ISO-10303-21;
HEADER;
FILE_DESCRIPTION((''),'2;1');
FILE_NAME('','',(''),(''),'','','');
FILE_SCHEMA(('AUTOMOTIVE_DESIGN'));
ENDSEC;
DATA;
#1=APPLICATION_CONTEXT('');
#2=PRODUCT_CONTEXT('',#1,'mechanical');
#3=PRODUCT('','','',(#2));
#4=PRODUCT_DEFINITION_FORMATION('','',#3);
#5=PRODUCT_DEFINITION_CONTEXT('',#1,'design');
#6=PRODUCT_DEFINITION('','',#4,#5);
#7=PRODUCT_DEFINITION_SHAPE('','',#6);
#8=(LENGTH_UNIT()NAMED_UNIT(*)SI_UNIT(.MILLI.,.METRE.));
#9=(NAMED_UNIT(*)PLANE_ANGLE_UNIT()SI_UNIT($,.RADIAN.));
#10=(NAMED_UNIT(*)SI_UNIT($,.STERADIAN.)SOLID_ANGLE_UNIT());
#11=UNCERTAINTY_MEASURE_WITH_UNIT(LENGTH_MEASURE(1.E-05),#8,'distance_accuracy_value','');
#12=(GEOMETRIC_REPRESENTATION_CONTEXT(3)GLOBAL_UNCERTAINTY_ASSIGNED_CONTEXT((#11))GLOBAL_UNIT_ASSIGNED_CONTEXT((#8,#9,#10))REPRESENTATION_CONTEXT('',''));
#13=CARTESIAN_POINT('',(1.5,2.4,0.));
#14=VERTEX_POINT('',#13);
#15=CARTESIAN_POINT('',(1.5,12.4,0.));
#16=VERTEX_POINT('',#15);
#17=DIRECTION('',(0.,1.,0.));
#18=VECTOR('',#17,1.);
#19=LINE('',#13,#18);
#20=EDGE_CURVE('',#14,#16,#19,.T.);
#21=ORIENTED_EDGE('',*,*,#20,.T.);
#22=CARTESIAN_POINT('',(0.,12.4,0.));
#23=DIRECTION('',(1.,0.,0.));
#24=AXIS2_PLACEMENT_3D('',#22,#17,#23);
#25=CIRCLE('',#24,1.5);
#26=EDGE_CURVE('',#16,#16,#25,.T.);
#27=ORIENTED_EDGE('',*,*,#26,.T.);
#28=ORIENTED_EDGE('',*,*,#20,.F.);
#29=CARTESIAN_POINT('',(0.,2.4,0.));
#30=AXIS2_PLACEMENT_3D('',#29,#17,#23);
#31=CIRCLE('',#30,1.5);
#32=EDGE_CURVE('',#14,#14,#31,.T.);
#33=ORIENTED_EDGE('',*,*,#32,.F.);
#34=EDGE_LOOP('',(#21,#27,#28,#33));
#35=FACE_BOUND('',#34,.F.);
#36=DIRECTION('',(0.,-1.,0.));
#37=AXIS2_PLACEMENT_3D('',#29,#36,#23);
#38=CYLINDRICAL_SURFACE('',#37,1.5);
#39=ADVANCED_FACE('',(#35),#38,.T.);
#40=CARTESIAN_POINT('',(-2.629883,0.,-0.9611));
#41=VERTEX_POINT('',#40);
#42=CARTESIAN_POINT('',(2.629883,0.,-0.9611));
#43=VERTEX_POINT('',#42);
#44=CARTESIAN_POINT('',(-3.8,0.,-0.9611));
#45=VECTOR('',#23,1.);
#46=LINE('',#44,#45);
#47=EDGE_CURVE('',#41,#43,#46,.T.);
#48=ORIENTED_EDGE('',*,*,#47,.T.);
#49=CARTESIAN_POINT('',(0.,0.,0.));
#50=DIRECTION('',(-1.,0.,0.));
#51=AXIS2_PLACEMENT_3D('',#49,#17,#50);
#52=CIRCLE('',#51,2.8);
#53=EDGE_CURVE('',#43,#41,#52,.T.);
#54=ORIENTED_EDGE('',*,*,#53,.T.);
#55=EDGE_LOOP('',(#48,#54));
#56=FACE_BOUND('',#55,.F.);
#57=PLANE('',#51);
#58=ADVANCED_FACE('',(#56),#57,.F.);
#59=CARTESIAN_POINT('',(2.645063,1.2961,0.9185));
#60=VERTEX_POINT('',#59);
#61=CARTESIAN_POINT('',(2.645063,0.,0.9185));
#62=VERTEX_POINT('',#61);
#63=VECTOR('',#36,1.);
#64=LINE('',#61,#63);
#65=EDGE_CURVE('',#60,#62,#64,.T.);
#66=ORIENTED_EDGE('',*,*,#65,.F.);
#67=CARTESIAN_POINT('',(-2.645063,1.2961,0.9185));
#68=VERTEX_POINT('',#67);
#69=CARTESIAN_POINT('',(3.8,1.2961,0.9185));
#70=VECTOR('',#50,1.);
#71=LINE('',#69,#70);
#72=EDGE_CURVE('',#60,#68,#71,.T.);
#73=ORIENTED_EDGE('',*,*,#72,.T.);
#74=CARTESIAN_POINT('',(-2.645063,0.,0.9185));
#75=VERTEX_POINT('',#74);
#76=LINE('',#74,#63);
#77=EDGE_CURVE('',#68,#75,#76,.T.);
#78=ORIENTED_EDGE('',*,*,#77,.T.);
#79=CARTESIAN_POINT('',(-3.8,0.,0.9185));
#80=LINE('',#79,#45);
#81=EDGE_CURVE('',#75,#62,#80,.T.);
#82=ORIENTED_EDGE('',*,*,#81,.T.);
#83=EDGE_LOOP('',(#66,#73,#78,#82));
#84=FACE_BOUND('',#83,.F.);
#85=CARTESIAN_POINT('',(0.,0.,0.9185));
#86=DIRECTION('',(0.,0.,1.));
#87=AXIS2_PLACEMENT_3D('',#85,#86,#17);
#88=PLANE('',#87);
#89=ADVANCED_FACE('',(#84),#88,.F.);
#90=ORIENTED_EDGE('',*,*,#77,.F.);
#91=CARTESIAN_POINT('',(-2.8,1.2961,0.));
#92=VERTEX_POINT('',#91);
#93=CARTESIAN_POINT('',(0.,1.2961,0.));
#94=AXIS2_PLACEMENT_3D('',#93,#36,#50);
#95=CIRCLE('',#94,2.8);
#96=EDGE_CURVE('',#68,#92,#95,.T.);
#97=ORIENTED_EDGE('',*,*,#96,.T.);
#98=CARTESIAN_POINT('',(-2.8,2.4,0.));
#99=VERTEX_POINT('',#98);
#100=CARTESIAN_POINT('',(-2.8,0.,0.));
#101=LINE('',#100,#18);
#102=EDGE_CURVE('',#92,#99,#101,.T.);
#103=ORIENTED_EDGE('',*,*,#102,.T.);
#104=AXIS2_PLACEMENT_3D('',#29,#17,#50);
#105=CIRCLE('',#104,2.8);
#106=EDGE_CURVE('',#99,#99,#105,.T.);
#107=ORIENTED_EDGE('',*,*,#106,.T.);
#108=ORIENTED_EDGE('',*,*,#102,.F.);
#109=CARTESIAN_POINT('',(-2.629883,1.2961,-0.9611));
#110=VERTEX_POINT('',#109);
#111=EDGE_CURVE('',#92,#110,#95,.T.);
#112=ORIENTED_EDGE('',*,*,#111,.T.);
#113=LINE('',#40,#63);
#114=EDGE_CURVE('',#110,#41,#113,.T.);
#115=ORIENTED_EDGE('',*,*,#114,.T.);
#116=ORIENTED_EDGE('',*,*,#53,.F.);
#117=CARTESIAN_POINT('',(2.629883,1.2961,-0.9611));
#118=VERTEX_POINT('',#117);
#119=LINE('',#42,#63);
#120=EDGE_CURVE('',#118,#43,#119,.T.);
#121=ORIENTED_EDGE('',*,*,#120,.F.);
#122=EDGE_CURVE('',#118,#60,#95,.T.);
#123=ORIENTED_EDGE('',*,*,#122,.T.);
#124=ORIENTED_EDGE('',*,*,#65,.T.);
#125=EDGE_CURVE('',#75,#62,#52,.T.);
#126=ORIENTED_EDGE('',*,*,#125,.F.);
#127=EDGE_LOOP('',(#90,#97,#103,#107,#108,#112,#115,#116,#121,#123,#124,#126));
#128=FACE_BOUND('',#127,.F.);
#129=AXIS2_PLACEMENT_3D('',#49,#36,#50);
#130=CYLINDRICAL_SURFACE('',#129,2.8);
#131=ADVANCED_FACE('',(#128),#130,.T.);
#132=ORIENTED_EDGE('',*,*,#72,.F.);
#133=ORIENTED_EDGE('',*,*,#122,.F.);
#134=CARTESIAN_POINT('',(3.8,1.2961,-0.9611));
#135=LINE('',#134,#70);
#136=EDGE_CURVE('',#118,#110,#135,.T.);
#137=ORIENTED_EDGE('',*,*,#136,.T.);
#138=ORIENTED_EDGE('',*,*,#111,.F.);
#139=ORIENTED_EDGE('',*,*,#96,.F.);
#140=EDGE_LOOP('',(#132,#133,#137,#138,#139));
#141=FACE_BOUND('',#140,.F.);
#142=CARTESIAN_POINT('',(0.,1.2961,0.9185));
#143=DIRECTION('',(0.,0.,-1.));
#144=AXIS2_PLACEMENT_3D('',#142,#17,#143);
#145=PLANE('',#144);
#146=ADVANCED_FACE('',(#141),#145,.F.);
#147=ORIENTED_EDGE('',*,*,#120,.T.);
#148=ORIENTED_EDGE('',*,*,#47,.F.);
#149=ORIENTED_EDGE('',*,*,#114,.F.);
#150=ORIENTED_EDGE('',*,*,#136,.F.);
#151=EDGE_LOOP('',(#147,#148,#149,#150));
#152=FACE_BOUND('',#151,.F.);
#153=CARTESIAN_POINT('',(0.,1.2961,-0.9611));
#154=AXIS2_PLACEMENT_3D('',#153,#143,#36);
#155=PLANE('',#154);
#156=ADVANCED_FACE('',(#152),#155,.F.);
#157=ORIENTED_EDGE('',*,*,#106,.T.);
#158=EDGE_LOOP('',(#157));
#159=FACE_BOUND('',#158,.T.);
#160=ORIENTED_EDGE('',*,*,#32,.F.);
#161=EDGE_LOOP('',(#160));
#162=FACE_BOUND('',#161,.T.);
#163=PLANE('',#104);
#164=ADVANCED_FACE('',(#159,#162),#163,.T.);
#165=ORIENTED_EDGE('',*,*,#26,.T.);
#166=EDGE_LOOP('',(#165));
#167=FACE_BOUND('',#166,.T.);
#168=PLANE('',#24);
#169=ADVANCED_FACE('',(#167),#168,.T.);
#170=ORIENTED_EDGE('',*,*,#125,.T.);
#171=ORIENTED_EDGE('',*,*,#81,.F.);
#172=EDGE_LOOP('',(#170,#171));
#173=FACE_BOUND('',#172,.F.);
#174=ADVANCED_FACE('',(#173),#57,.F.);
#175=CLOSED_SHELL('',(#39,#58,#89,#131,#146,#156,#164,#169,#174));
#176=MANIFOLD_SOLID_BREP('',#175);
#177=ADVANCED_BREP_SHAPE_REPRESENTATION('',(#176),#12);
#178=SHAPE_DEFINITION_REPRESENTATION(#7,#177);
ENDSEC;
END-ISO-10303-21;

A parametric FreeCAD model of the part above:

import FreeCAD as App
import Part
import Sketcher
from FreeCAD import Vector
Q = App.Units.Quantity


def add_polygon(sketch, points):
    """Adds a closed chain of lines whose ends are joined by coincident constraints."""
    first, n = sketch.GeometryCount, len(points)
    for a, b in zip(points, points[1:] + points[:1]):
        sketch.addGeometry(Part.LineSegment(App.Vector(*a, 0), App.Vector(*b, 0)), False)
    for i in range(n):
        sketch.addConstraint(Sketcher.Constraint("Coincident", first + i, 2, first + (i + 1) % n, 1))

doc = App.newDocument("Part")
body = doc.addObject("PartDesign::Body", "Body")

sketch1 = body.newObject("Sketcher::SketchObject", "Sketch")
sketch1.AttachmentSupport = (doc.getObject("XZ_Plane"), [""])
sketch1.MapMode = "FlatFace"
sketch1.addGeometry(Part.Circle(Vector(0, 0, 0), Vector(0, 0, 1), 2.8), False)
sketch1.addConstraint([
    Sketcher.Constraint("Coincident", 0, 3, -1, 1),
    Sketcher.Constraint("Diameter", 0, Q("5.6 mm")),
])
pad1 = body.newObject("PartDesign::Pad", "Pad")
pad1.Profile = sketch1
pad1.Length = 2.4
pad1.Reversed = True

sketch2 = body.newObject("Sketcher::SketchObject", "Sketch001")
sketch2.AttachmentSupport = (doc.getObject("YZ_Plane"), [""])
sketch2.MapMode = "FlatFace"
add_polygon(sketch2, [(1.3, 0.9), (0, 0.9), (0, -1), (1.3, -1)])
sketch2.addConstraint([
    Sketcher.Constraint("Horizontal", 0),
    Sketcher.Constraint("Vertical", 1),
    Sketcher.Constraint("Horizontal", 2),
    Sketcher.Constraint("Vertical", 3),
    Sketcher.Constraint("PointOnObject", 0, 2, -2),
    Sketcher.Constraint("DistanceX", 0, 2, 0, 1, Q("1.296 mm")),
    Sketcher.Constraint("DistanceY", 1, 2, 1, 1, Q("1.8796 mm")),
    Sketcher.Constraint("DistanceY", 1, 2, -1, 1, Q("0.961 mm")),
])
pocket1 = body.newObject("PartDesign::Pocket", "Pocket")
pocket1.Profile = sketch2
pocket1.Type = "ThroughAll"
pocket1.Midplane = True

sketch3 = body.newObject("Sketcher::SketchObject", "Sketch002")
sketch3.AttachmentSupport = (doc.getObject("XZ_Plane"), [""])
sketch3.MapMode = "FlatFace"
sketch3.AttachmentOffset = App.Placement(Vector(0, 0, -2.4), App.Rotation())
sketch3.addGeometry(Part.Circle(Vector(0, 0, 0), Vector(0, 0, 1), 1.5), False)
sketch3.addConstraint([
    Sketcher.Constraint("Coincident", 0, 3, -1, 1),
    Sketcher.Constraint("Diameter", 0, Q("3 mm")),
])
pad2 = body.newObject("PartDesign::Pad", "Pad001")
pad2.Profile = sketch3
pad2.Length = 10
pad2.Reversed = True

doc.recompute()
